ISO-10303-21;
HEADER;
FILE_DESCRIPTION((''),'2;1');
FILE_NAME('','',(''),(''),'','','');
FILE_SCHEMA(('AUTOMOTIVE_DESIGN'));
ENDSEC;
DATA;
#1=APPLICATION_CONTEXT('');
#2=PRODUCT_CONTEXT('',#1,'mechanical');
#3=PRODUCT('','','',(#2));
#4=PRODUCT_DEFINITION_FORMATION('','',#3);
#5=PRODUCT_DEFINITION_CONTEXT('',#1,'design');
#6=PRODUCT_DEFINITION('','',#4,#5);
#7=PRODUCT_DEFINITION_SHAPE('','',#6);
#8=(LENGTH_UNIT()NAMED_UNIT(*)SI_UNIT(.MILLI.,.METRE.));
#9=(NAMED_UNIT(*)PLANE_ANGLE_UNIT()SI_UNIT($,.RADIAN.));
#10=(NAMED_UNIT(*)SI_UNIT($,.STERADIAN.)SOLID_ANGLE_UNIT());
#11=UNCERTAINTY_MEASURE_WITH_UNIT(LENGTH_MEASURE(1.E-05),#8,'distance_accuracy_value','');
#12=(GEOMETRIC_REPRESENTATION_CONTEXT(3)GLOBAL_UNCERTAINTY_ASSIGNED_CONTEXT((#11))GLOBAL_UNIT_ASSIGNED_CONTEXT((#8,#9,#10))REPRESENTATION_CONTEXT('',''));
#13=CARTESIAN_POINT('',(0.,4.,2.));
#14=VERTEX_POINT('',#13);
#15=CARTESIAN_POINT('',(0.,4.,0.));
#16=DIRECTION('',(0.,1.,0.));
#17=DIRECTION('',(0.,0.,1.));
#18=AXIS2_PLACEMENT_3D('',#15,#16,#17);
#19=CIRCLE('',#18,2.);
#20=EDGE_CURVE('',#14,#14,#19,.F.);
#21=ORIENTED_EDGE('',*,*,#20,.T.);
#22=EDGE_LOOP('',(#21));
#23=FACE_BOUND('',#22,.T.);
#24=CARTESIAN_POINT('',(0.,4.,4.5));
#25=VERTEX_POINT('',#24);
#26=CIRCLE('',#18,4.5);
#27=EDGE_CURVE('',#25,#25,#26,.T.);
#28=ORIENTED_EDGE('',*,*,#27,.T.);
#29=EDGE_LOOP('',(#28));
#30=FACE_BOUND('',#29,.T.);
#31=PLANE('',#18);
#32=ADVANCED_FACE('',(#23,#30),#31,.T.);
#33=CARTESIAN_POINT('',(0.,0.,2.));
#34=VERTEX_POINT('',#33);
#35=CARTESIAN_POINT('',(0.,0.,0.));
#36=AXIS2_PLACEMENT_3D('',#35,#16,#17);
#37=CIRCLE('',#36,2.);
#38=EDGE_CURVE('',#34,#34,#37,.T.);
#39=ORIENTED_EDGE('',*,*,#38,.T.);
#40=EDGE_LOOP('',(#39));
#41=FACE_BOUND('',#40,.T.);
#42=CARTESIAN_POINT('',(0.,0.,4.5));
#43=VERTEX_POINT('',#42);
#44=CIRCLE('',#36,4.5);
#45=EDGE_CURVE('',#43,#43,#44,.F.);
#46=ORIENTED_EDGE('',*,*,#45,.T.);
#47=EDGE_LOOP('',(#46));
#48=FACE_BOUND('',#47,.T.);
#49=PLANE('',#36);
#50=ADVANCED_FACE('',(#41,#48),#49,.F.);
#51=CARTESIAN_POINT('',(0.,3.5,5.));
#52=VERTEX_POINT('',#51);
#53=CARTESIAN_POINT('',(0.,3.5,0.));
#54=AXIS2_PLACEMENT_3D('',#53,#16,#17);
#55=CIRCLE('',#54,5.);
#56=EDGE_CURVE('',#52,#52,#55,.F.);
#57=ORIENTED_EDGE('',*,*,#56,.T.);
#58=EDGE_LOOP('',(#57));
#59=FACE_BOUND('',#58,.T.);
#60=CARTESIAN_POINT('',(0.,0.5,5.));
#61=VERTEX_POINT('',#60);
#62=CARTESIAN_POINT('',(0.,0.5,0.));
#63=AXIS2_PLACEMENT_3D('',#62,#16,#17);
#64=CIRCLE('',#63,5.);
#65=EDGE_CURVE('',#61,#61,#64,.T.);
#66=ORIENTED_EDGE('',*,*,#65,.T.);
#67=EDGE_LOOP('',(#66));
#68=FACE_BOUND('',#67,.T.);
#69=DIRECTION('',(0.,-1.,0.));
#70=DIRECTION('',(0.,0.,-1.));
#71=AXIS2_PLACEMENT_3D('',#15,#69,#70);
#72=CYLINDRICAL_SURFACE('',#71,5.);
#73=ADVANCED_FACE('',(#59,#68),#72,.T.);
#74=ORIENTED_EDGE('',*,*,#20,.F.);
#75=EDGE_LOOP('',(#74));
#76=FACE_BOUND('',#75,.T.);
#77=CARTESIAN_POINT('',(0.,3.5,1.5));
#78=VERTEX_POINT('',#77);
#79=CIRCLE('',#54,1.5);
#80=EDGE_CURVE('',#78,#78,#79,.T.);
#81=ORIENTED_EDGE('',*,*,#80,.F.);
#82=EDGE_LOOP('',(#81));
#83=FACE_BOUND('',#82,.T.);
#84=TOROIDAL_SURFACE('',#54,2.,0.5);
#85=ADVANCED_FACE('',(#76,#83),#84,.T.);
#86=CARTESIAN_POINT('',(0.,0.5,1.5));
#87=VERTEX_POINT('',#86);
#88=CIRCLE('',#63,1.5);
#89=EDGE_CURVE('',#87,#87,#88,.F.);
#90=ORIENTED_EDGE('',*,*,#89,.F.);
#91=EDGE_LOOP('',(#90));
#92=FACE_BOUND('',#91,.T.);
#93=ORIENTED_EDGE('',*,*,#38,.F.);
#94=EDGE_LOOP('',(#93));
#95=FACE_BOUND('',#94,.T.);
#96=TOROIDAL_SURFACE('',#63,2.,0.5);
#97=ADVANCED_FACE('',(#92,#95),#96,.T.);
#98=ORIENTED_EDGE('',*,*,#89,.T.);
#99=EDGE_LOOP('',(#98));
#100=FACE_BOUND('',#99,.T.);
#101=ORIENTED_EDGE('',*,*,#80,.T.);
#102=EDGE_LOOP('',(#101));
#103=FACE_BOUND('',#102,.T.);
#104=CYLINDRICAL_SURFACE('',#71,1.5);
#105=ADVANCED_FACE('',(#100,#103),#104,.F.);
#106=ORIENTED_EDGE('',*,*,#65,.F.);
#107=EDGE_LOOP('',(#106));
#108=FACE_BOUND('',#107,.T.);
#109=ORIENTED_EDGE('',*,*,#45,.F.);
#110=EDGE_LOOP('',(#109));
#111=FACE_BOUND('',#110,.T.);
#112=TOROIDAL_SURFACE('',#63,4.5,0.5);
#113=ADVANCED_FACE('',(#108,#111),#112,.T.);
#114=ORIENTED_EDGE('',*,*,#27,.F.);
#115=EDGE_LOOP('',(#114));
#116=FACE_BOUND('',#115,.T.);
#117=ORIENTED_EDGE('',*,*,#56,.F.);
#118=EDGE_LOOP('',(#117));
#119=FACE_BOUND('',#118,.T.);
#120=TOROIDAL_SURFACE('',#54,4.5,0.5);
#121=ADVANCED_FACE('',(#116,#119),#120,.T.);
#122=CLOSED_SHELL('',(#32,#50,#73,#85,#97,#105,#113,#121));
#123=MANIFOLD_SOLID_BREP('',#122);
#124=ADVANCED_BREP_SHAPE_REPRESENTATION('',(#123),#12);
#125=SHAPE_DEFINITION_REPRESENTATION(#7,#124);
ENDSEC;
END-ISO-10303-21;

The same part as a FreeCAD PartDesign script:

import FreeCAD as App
import Part
import Sketcher

V = App.Vector


def edges_at(feature, points):
    """Names of the edges that pass closest to the given points."""
    edges = feature.Shape.Edges
    near = lambda p: min(range(len(edges)), key=lambda i: edges[i].distToShape(Part.Vertex(*p))[0])
    return sorted({f"Edge{near(p) + 1}" for p in points})

doc = App.newDocument("Part")
body = doc.addObject("PartDesign::Body", "Body")

# Sketch on XZ plane
sketch1 = doc.addObject("Sketcher::SketchObject", "Sketch")
body.addObject(sketch1)
sketch1.AttachmentSupport = (doc.XZ_Plane, [""])
sketch1.MapMode = "FlatFace"
sketch1.addGeometry(Part.Circle(V(0, 0, 0), V(0, 0, 1), 5), False)
sketch1.addGeometry(Part.Circle(V(0, 0, 0), V(0, 0, 1), 1.5), False)
sketch1.addConstraint(Sketcher.Constraint("Coincident", 0, 3, -1, 1))
sketch1.addConstraint(Sketcher.Constraint("Coincident", 1, 3, -1, 1))
sketch1.addConstraint(Sketcher.Constraint("Diameter", 0, 10.0))
sketch1.addConstraint(Sketcher.Constraint("Diameter", 1, 3.0))
pad1 = doc.addObject("PartDesign::Pad", "Pad")
body.addObject(pad1)
pad1.Profile = sketch1
pad1.Length = 4
pad1.Reversed = True
doc.recompute()

fillet = doc.addObject("PartDesign::Fillet", "Fillet")
body.addObject(fillet)
fillet.Base = (pad1, edges_at(pad1, [(-5, 0, 0), (-5, 4, 0)]))
fillet.Radius = 0.5
doc.recompute()

fillet2 = doc.addObject("PartDesign::Fillet", "Fillet001")
body.addObject(fillet2)
fillet2.Base = (fillet, edges_at(fillet, [(-1.5, 0, 0), (-1.5, 4, 0)]))
fillet2.Radius = 0.5

doc.recompute()
